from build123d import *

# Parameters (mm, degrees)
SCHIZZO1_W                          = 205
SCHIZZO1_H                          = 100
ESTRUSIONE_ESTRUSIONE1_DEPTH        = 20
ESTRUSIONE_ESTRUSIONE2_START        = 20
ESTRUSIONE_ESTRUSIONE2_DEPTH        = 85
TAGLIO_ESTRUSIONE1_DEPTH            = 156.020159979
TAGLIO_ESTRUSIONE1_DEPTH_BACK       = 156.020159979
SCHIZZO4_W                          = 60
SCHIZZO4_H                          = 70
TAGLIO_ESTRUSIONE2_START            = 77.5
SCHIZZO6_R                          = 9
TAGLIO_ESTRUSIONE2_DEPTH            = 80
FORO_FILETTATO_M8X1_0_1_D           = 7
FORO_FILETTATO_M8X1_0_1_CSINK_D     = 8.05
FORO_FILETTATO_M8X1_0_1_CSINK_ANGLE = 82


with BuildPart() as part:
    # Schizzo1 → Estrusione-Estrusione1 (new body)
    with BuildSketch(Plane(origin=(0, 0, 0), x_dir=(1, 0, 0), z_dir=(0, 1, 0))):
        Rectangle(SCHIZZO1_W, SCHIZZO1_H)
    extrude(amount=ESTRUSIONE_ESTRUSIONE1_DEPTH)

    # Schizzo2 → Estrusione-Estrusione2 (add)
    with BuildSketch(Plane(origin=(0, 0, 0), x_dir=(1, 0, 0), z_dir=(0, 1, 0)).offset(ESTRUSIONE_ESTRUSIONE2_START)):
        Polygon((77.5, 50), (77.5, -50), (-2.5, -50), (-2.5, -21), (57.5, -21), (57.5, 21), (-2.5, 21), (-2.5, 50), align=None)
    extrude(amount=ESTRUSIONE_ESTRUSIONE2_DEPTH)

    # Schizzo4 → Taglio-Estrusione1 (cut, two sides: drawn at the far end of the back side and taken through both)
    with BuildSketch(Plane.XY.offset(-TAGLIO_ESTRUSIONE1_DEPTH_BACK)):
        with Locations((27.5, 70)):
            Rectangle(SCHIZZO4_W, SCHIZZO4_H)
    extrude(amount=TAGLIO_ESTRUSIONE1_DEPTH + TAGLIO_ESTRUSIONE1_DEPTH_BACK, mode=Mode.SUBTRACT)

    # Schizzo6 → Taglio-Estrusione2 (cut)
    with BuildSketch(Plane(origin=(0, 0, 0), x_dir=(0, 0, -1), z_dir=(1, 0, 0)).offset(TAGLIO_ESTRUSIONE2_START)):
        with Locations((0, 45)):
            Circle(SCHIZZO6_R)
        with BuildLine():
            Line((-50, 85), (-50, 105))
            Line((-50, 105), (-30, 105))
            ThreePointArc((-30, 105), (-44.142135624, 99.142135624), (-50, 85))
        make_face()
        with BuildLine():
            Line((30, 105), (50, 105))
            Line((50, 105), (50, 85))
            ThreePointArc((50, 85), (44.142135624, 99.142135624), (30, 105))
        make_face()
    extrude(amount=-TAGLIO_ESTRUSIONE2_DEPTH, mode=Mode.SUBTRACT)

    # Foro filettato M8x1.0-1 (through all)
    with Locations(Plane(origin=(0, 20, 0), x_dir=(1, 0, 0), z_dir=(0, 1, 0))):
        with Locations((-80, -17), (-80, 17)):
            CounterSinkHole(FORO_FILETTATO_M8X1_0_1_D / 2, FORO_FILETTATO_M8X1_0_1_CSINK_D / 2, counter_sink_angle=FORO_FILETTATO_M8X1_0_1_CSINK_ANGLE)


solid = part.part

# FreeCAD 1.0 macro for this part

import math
import FreeCAD as App
import Part
import Sketcher

doc = App.newDocument("Part")
params = doc.addObject("Spreadsheet::Sheet", "Params")
for row, (alias, value) in enumerate([
    ("sketch1_width", "205 mm"),
    ("sketch1_height", "100 mm"),
    ("pad1_length", "20 mm"),
    ("sketch2_width", "80 mm"),
    ("sketch2_width2", "60 mm"),
    ("sketch2_height", "100 mm"),
    ("sketch2_height2", "29 mm"),
    ("pad2_length", "85 mm"),
    ("sketch3_width", "60 mm"),
    ("sketch3_height", "70 mm"),
    ("sketch4_diameter", "18 mm"),
    ("sketch4_radius", "20 mm"),
    ("pocket2_length", "80 mm"),
    ("sketch5_diameter", "7 mm"),
    ("hole_diameter", "7 mm"),
    ("hole_csink_diameter", "8.05 mm"),
], start=1):
    params.set(f"A{row}", alias)
    params.set(f"B{row}", "=" + value)
    params.setAlias(f"B{row}", alias)

body = doc.addObject("PartDesign::Body", "Body")

sketch1 = body.newObject("Sketcher::SketchObject", "Sketch")
sketch1.AttachmentSupport = (doc.getObject("XZ_Plane"), [""])
sketch1.MapMode = "FlatFace"
sketch1.addGeometry(Part.LineSegment(App.Vector(-102, -50, 0), App.Vector(-102, 50, 0)), False)
sketch1.addGeometry(Part.LineSegment(App.Vector(-102, 50, 0), App.Vector(102, 50, 0)), False)
sketch1.addGeometry(Part.LineSegment(App.Vector(102, 50, 0), App.Vector(102, -50, 0)), False)
sketch1.addGeometry(Part.LineSegment(App.Vector(102, -50, 0), App.Vector(-102, -50, 0)), False)
sketch1.addConstraint(Sketcher.Constraint("Coincident", 0, 2, 1, 1))
sketch1.addConstraint(Sketcher.Constraint("Coincident", 1, 2, 2, 1))
sketch1.addConstraint(Sketcher.Constraint("Coincident", 2, 2, 3, 1))
sketch1.addConstraint(Sketcher.Constraint("Coincident", 3, 2, 0, 1))
sketch1.addConstraint(Sketcher.Constraint("Vertical", 0))
sketch1.addConstraint(Sketcher.Constraint("Horizontal", 1))
sketch1.addConstraint(Sketcher.Constraint("Vertical", 2))
sketch1.addConstraint(Sketcher.Constraint("Horizontal", 3))
sketch1.addConstraint(Sketcher.Constraint("Symmetric", 0, 2, 2, 2, -1, 1))
sketch1.addConstraint(Sketcher.Constraint("DistanceX", 1, 1, 1, 2, 205.0))
sketch1.addConstraint(Sketcher.Constraint("DistanceY", 0, 1, 0, 2, 100.0))
sketch1.setExpression("Constraints[9]", "Params.sketch1_width")
sketch1.setExpression("Constraints[10]", "Params.sketch1_height")
pad1 = body.newObject("PartDesign::Pad", "Pad")
pad1.Profile = sketch1
pad1.setExpression("Length", "Params.pad1_length")
pad1.Reversed = True

sketch2 = body.newObject("Sketcher::SketchObject", "Sketch001")
sketch2.AttachmentSupport = (doc.getObject("XZ_Plane"), [""])
sketch2.MapMode = "FlatFace"
sketch2.AttachmentOffset = App.Placement(App.Vector(0, 0, -20), App.Rotation())
sketch2.addGeometry(Part.LineSegment(App.Vector(78, 50, 0), App.Vector(78, -50, 0)), False)
sketch2.addGeometry(Part.LineSegment(App.Vector(78, -50, 0), App.Vector(-2, -50, 0)), False)
sketch2.addGeometry(Part.LineSegment(App.Vector(-2, -50, 0), App.Vector(-2, -21, 0)), False)
sketch2.addGeometry(Part.LineSegment(App.Vector(-2, -21, 0), App.Vector(58, -21, 0)), False)
sketch2.addGeometry(Part.LineSegment(App.Vector(58, -21, 0), App.Vector(58, 21, 0)), False)
sketch2.addGeometry(Part.LineSegment(App.Vector(58, 21, 0), App.Vector(-2, 21, 0)), False)
sketch2.addGeometry(Part.LineSegment(App.Vector(-2, 21, 0), App.Vector(-2, 50, 0)), False)
sketch2.addGeometry(Part.LineSegment(App.Vector(-2, 50, 0), App.Vector(78, 50, 0)), False)
sketch2.addConstraint(Sketcher.Constraint("Coincident", 0, 2, 1, 1))
sketch2.addConstraint(Sketcher.Constraint("Coincident", 1, 2, 2, 1))
sketch2.addConstraint(Sketcher.Constraint("Coincident", 2, 2, 3, 1))
sketch2.addConstraint(Sketcher.Constraint("Coincident", 3, 2, 4, 1))
sketch2.addConstraint(Sketcher.Constraint("Coincident", 4, 2, 5, 1))
sketch2.addConstraint(Sketcher.Constraint("Coincident", 5, 2, 6, 1))
sketch2.addConstraint(Sketcher.Constraint("Coincident", 6, 2, 7, 1))
sketch2.addConstraint(Sketcher.Constraint("Coincident", 7, 2, 0, 1))
sketch2.addConstraint(Sketcher.Constraint("Vertical", 0))
sketch2.addConstraint(Sketcher.Constraint("Horizontal", 1))
sketch2.addConstraint(Sketcher.Constraint("Vertical", 2))
sketch2.addConstraint(Sketcher.Constraint("Horizontal", 3))
sketch2.addConstraint(Sketcher.Constraint("Vertical", 4))
sketch2.addConstraint(Sketcher.Constraint("Horizontal", 5))
sketch2.addConstraint(Sketcher.Constraint("Vertical", 6))
sketch2.addConstraint(Sketcher.Constraint("Horizontal", 7))
sketch2.addConstraint(Sketcher.Constraint("Symmetric", 2, 2, 5, 2, -1))
sketch2.addConstraint(Sketcher.Constraint("Equal", 2, 6))
sketch2.addConstraint(Sketcher.Constraint("DistanceX", 1, 2, 1, 1, 80.0))
sketch2.addConstraint(Sketcher.Constraint("DistanceX", 3, 1, 3, 2, 60.0))
sketch2.addConstraint(Sketcher.Constraint("DistanceY", 0, 2, 0, 1, 100.0))
sketch2.addConstraint(Sketcher.Constraint("DistanceY", 2, 1, 2, 2, 29.0))
sketch2.addConstraint(Sketcher.Constraint("DistanceX", -1, 1, 0, 2, 77.5))
sketch2.setExpression("Constraints[18]", "Params.sketch2_width")
sketch2.setExpression("Constraints[19]", "Params.sketch2_width2")
sketch2.setExpression("Constraints[20]", "Params.sketch2_height")
sketch2.setExpression("Constraints[21]", "Params.sketch2_height2")
pad2 = body.newObject("PartDesign::Pad", "Pad001")
pad2.Profile = sketch2
pad2.setExpression("Length", "Params.pad2_length")
pad2.Reversed = True

sketch3 = body.newObject("Sketcher::SketchObject", "Sketch002")
sketch3.AttachmentSupport = (doc.getObject("XY_Plane"), [""])
sketch3.MapMode = "FlatFace"
sketch3.addGeometry(Part.LineSegment(App.Vector(-2, 105, 0), App.Vector(-2, 35, 0)), False)
sketch3.addGeometry(Part.LineSegment(App.Vector(-2, 35, 0), App.Vector(58, 35, 0)), False)
sketch3.addGeometry(Part.LineSegment(App.Vector(58, 35, 0), App.Vector(58, 105, 0)), False)
sketch3.addGeometry(Part.LineSegment(App.Vector(58, 105, 0), App.Vector(-2, 105, 0)), False)
sketch3.addConstraint(Sketcher.Constraint("Coincident", 0, 2, 1, 1))
sketch3.addConstraint(Sketcher.Constraint("Coincident", 1, 2, 2, 1))
sketch3.addConstraint(Sketcher.Constraint("Coincident", 2, 2, 3, 1))
sketch3.addConstraint(Sketcher.Constraint("Coincident", 3, 2, 0, 1))
sketch3.addConstraint(Sketcher.Constraint("Vertical", 0))
sketch3.addConstraint(Sketcher.Constraint("Horizontal", 1))
sketch3.addConstraint(Sketcher.Constraint("Vertical", 2))
sketch3.addConstraint(Sketcher.Constraint("Horizontal", 3))
sketch3.addConstraint(Sketcher.Constraint("DistanceX", 1, 1, 1, 2, 60.0))
sketch3.addConstraint(Sketcher.Constraint("DistanceY", 0, 2, 0, 1, 70.0))
sketch3.addConstraint(Sketcher.Constraint("DistanceY", -1, 1, 0, 2, 35.0))
sketch3.addConstraint(Sketcher.Constraint("DistanceX", 0, 2, -1, 1, 2.5))
sketch3.setExpression("Constraints[8]", "Params.sketch3_width")
sketch3.setExpression("Constraints[9]", "Params.sketch3_height")
pocket1 = body.newObject("PartDesign::Pocket", "Pocket")
pocket1.Profile = sketch3
pocket1.Type = "ThroughAll"
pocket1.Midplane = True

sketch4 = body.newObject("Sketcher::SketchObject", "Sketch003")
sketch4.AttachmentSupport = (doc.getObject("YZ_Plane"), [""])
sketch4.MapMode = "FlatFace"
sketch4.AttachmentOffset = App.Placement(App.Vector(0, 0, 77.5), App.Rotation())
sketch4.addGeometry(Part.Circle(App.Vector(45, 0, 0), App.Vector(0, 0, 1), 9), False)
sketch4.addGeometry(Part.LineSegment(App.Vector(105, 50, 0), App.Vector(85, 50, 0)), False)
sketch4.addGeometry(Part.ArcOfCircle(Part.Circle(App.Vector(85, 30, 0), App.Vector(0, 0, 1), 20), math.radians(0), math.radians(90)), False)
sketch4.addGeometry(Part.LineSegment(App.Vector(105, 30, 0), App.Vector(105, 50, 0)), False)
sketch4.addGeometry(Part.LineSegment(App.Vector(105, -50, 0), App.Vector(105, -30, 0)), False)
sketch4.addGeometry(Part.ArcOfCircle(Part.Circle(App.Vector(85, -30, 0), App.Vector(0, 0, 1), 20), math.radians(-90), math.radians(0)), False)
sketch4.addGeometry(Part.LineSegment(App.Vector(85, -50, 0), App.Vector(105, -50, 0)), False)
sketch4.addConstraint(Sketcher.Constraint("Tangent", 1, 2, 2, 2))
sketch4.addConstraint(Sketcher.Constraint("Tangent", 2, 1, 3, 1))
sketch4.addConstraint(Sketcher.Constraint("Coincident", 3, 2, 1, 1))
sketch4.addConstraint(Sketcher.Constraint("Tangent", 4, 2, 5, 2))
sketch4.addConstraint(Sketcher.Constraint("Tangent", 5, 1, 6, 1))
sketch4.addConstraint(Sketcher.Constraint("Coincident", 6, 2, 4, 1))
sketch4.addConstraint(Sketcher.Constraint("Horizontal", 1))
sketch4.addConstraint(Sketcher.Constraint("Vertical", 3))
sketch4.addConstraint(Sketcher.Constraint("Vertical", 4))
sketch4.addConstraint(Sketcher.Constraint("Horizontal", 6))
sketch4.addConstraint(Sketcher.Constraint("Equal", 2, 5))
sketch4.addConstraint(Sketcher.Constraint("Symmetric", 2, 3, 5, 3, -1))
sketch4.addConstraint(Sketcher.Constraint("PointOnObject", 0, 3, -1))
sketch4.addConstraint(Sketcher.Constraint("Diameter", 0, 18.0))
sketch4.addConstraint(Sketcher.Constraint("Radius", 2, 20.0))
sketch4.addConstraint(Sketcher.Constraint("DistanceX", -1, 1, 0, 3, 45.0))
sketch4.addConstraint(Sketcher.Constraint("DistanceX", -1, 1, 2, 3, 85.0))
sketch4.addConstraint(Sketcher.Constraint("DistanceY", -1, 1, 2, 3, 30.0))
sketch4.setExpression("Constraints[13]", "Params.sketch4_diameter")
sketch4.setExpression("Constraints[14]", "Params.sketch4_radius")
pocket2 = body.newObject("PartDesign::Pocket", "Pocket001")
pocket2.Profile = sketch4
pocket2.setExpression("Length", "Params.pocket2_length")

sketch5 = body.newObject("Sketcher::SketchObject", "Sketch004")
sketch5.AttachmentSupport = (doc.getObject("XZ_Plane"), [""])
sketch5.MapMode = "FlatFace"
sketch5.AttachmentOffset = App.Placement(App.Vector(0, 0, -20), App.Rotation())
sketch5.addGeometry(Part.Circle(App.Vector(-80, 17, 0), App.Vector(0, 0, 1), 3.5), False)
sketch5.addGeometry(Part.Circle(App.Vector(-80, -17, 0), App.Vector(0, 0, 1), 3.5), False)
sketch5.addConstraint(Sketcher.Constraint("Equal", 0, 1))
sketch5.addConstraint(Sketcher.Constraint("Symmetric", 0, 3, 1, 3, -1))
sketch5.addConstraint(Sketcher.Constraint("Diameter", 0, 7.0))
sketch5.addConstraint(Sketcher.Constraint("DistanceX", 0, 3, -1, 1, 80.0))
sketch5.addConstraint(Sketcher.Constraint("DistanceY", -1, 1, 0, 3, 17.0))
sketch5.setExpression("Constraints[2]", "Params.sketch5_diameter")
doc.recompute()
hole = body.newObject("PartDesign::Hole", "Hole")
hole.Profile = sketch5
hole.ThreadType = "None"
hole.setExpression("Diameter", "Params.hole_diameter")
hole.DepthType = "ThroughAll"
hole.HoleCutType = "Countersink"
hole.setExpression("HoleCutDiameter", "Params.hole_csink_diameter")
hole.HoleCutCountersinkAngle = 82
hole.Reversed = True

doc.recompute()
